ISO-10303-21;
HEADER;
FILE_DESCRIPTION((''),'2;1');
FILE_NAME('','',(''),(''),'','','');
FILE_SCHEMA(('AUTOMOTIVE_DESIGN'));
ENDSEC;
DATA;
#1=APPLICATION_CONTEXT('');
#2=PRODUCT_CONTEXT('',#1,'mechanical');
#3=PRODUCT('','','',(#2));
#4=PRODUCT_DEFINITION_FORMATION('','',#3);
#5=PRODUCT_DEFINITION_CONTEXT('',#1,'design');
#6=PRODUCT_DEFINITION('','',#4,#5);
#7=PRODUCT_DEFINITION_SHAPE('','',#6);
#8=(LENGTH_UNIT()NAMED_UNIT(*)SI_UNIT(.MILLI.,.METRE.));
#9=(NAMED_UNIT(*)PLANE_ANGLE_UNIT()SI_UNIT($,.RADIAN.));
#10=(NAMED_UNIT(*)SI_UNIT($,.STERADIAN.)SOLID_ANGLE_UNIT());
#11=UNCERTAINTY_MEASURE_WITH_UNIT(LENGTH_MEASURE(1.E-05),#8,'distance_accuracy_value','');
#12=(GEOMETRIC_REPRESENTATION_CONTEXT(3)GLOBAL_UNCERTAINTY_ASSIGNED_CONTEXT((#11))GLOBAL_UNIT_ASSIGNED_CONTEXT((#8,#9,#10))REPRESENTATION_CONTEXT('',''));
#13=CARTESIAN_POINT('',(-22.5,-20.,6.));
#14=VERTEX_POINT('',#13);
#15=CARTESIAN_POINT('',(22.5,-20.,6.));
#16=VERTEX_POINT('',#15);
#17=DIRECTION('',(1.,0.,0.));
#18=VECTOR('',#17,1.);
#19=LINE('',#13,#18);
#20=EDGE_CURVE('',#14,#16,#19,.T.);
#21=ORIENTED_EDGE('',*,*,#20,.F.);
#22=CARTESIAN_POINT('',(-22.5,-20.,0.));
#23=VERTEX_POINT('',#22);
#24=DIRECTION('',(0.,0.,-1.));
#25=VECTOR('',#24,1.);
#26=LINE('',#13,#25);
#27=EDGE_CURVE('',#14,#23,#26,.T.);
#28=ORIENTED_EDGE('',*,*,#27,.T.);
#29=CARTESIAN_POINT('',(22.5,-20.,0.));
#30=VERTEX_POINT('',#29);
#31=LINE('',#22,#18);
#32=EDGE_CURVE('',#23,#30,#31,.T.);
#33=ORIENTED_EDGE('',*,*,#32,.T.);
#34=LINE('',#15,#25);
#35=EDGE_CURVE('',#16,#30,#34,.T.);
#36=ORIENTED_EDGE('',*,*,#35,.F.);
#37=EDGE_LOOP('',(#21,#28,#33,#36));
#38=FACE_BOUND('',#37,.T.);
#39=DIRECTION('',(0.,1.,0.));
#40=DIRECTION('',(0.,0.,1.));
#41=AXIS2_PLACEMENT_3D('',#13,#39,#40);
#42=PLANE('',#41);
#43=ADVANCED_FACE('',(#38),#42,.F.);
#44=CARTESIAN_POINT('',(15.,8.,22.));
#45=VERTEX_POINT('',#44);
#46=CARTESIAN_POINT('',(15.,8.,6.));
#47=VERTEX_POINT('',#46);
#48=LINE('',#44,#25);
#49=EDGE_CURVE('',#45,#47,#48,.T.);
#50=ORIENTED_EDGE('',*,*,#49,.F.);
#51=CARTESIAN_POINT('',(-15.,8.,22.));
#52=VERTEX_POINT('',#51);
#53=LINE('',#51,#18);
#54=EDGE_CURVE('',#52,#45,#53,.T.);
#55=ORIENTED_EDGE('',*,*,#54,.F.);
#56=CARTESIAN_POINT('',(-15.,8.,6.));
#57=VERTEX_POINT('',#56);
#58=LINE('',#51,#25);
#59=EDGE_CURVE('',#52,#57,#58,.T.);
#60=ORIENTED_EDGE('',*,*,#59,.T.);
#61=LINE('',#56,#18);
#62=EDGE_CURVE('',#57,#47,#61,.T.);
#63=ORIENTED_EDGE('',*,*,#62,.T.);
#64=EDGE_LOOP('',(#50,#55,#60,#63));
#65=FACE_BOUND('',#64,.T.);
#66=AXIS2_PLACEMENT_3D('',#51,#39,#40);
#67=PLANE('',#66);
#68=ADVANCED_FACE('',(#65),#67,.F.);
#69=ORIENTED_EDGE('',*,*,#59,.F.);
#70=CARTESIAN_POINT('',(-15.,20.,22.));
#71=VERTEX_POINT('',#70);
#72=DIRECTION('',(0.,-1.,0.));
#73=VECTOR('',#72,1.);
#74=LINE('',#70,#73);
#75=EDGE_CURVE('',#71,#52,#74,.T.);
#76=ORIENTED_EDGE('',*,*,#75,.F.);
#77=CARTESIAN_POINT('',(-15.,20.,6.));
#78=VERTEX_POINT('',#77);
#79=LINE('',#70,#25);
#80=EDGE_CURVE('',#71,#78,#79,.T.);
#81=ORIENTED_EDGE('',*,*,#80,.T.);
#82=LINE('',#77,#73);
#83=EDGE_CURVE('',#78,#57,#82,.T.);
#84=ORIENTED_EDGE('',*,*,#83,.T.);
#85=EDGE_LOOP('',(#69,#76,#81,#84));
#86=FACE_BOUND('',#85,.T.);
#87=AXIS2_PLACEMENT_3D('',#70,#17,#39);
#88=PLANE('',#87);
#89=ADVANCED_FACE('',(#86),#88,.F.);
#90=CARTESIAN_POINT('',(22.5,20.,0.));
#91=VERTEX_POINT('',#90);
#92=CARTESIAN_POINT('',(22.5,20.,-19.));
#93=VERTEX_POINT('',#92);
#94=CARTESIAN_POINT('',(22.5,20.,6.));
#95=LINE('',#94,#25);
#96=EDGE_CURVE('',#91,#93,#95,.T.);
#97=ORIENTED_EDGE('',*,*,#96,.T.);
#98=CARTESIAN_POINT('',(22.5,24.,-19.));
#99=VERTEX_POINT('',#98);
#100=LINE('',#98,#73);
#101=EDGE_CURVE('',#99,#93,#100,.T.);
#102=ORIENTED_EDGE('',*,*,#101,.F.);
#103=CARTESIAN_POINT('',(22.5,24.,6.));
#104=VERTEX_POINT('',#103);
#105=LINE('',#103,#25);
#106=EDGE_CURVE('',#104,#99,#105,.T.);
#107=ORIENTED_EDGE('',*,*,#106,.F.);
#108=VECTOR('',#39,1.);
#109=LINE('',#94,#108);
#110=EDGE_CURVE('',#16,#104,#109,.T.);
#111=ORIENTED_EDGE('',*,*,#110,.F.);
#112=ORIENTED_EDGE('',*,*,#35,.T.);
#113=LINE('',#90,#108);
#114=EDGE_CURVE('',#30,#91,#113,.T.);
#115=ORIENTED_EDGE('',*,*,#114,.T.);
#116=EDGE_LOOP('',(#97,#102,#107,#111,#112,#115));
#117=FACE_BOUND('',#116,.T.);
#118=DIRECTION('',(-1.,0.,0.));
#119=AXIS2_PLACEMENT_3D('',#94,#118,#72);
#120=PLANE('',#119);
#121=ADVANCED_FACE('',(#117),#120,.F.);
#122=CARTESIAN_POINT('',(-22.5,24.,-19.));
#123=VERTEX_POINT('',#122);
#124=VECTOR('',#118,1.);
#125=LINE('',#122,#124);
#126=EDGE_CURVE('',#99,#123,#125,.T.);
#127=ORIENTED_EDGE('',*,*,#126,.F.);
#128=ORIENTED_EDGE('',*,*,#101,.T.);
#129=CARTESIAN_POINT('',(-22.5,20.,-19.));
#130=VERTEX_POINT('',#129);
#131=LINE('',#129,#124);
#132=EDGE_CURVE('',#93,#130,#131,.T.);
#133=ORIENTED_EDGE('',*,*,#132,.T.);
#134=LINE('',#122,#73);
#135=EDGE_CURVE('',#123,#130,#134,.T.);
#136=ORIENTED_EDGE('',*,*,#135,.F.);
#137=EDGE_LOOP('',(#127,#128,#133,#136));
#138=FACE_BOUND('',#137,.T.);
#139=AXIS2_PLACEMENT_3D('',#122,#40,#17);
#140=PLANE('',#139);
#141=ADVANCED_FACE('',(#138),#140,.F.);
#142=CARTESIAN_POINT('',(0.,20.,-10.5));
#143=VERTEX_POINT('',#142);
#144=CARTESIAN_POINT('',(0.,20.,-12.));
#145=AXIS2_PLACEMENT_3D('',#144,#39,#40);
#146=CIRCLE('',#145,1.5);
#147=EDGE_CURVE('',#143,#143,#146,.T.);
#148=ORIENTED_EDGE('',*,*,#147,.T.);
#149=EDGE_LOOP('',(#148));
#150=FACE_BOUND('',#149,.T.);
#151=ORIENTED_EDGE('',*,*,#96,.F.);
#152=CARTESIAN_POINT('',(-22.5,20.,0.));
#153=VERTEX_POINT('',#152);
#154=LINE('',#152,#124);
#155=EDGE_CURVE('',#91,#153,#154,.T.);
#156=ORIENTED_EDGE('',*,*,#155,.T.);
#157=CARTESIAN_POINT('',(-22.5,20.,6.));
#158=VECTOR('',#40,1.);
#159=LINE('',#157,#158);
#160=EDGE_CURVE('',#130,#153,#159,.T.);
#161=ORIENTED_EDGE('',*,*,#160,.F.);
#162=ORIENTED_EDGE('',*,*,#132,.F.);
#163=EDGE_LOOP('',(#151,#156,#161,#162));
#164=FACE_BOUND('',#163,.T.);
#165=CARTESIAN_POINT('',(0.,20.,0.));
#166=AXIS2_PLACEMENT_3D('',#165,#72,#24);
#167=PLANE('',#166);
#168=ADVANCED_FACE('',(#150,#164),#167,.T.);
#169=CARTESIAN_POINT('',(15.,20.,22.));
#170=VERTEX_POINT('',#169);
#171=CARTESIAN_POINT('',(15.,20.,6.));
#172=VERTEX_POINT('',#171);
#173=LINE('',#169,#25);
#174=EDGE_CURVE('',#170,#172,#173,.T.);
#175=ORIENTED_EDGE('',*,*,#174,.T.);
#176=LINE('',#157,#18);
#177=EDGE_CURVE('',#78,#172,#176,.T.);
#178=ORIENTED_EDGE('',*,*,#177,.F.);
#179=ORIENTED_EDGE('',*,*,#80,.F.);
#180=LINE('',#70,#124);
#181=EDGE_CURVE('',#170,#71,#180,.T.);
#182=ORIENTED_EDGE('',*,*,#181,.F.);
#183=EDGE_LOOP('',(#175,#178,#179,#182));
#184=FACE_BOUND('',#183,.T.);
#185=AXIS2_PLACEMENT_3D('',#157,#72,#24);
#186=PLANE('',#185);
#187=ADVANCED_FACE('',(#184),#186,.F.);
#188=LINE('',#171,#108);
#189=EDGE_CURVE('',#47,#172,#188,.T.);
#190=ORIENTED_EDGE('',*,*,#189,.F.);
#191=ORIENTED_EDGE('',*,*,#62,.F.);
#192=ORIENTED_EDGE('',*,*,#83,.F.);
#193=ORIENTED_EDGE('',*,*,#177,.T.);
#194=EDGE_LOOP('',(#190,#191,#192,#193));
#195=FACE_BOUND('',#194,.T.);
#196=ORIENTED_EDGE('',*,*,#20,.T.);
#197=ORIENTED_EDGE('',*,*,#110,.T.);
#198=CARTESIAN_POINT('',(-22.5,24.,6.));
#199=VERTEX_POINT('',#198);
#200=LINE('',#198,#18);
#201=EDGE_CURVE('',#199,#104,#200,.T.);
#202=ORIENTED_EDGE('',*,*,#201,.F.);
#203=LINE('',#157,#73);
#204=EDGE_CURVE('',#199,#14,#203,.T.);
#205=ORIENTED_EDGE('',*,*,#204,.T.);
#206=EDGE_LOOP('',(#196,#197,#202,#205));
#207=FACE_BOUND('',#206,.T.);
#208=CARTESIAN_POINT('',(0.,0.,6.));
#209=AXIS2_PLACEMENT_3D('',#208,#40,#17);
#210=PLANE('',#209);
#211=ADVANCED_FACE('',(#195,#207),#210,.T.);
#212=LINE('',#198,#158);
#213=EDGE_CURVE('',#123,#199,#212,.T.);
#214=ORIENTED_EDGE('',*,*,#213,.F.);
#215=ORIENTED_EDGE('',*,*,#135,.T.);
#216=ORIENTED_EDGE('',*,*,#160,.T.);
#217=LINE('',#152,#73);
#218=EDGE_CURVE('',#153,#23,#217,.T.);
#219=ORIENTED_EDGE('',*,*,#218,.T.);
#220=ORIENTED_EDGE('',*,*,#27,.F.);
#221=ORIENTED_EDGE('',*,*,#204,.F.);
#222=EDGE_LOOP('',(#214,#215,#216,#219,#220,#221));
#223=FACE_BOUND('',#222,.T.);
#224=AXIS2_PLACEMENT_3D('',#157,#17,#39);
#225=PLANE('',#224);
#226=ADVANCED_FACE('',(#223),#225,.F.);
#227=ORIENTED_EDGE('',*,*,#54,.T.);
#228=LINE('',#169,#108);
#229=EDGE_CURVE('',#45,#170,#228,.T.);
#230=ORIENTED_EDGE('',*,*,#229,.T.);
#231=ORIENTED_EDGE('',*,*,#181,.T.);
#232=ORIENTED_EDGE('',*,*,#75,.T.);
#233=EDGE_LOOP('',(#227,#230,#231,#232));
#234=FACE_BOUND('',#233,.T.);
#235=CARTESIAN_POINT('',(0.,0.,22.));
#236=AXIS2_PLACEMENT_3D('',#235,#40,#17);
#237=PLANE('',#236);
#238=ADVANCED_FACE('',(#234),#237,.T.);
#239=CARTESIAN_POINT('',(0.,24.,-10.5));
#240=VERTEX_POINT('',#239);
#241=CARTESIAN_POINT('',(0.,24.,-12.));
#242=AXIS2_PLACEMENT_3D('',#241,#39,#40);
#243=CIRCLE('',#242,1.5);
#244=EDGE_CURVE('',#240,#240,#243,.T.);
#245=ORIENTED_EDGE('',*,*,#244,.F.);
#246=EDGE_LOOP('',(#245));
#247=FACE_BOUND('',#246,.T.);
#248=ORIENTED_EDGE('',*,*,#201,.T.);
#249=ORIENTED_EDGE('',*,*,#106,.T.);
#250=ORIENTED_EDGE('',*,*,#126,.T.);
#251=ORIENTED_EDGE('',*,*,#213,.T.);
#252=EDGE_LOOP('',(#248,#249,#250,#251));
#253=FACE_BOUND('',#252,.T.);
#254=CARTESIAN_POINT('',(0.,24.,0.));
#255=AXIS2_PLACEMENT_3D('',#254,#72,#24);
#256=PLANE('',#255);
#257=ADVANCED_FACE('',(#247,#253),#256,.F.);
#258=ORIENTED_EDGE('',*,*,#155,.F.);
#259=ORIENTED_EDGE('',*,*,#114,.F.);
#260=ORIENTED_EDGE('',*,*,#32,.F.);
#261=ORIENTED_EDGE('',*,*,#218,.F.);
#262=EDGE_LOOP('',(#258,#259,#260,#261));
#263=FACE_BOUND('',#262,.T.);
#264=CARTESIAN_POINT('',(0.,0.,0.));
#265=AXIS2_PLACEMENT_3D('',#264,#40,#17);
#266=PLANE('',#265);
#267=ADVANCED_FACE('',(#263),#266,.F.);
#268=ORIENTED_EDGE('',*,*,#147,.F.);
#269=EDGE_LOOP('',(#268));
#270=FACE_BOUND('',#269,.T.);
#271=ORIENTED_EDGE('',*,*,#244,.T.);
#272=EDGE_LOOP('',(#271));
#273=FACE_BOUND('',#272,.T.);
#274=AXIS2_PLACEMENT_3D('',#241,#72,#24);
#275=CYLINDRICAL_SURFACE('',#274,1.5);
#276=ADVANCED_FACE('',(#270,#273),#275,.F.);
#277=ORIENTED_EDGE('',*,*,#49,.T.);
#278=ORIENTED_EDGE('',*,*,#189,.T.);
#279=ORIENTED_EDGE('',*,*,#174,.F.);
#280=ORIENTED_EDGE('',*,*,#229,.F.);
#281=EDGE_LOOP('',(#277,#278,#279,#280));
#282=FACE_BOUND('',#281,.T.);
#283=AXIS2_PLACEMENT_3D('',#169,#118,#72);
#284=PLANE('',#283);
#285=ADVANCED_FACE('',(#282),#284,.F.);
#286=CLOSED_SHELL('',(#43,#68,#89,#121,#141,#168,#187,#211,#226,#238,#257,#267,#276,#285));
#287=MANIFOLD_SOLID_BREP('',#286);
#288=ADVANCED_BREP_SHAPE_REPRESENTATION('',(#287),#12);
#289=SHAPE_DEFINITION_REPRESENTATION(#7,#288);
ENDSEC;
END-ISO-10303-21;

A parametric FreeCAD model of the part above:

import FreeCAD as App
import Part
import Sketcher
from FreeCAD import Vector

doc = App.newDocument("Part")
params = doc.addObject("Spreadsheet::Sheet", "Params")
for row, (alias, value) in enumerate([
    ("sketch1_width", "45 mm"),
    ("sketch1_height", "40 mm"),
    ("pad1_length", "6 mm"),
    ("sketch2_width", "30 mm"),
    ("sketch2_height", "12 mm"),
    ("pad2_length", "16 mm"),
    ("sketch3_diameter", "3 mm"),
    ("sketch3_width", "45 mm"),
    ("sketch3_height", "25 mm"),
    ("pad3_length", "4 mm"),
], start=1):
    params.set(f"A{row}", alias)
    params.set(f"B{row}", "=" + value)
    params.setAlias(f"B{row}", alias)

body = doc.addObject("PartDesign::Body", "Body")

# Sketch on XY plane
sketch1 = body.newObject("Sketcher::SketchObject", "Sketch")
sketch1.AttachmentSupport = (doc.getObject("XY_Plane"), [""])
sketch1.MapMode = "FlatFace"
sketch1.addGeometry([
    Part.LineSegment(Vector(-22, 20, 0), Vector(-22, -20, 0)),
    Part.LineSegment(Vector(-22, -20, 0), Vector(22, -20, 0)),
    Part.LineSegment(Vector(22, -20, 0), Vector(22, 20, 0)),
    Part.LineSegment(Vector(22, 20, 0), Vector(-22, 20, 0)),
], False)
sketch1.addConstraint([
    Sketcher.Constraint("Coincident", 0, 2, 1, 1),
    Sketcher.Constraint("Coincident", 1, 2, 2, 1),
    Sketcher.Constraint("Coincident", 2, 2, 3, 1),
    Sketcher.Constraint("Coincident", 3, 2, 0, 1),
    Sketcher.Constraint("Vertical", 0),
    Sketcher.Constraint("Horizontal", 1),
    Sketcher.Constraint("Vertical", 2),
    Sketcher.Constraint("Horizontal", 3),
    Sketcher.Constraint("Symmetric", 0, 2, 2, 2, -1, 1),
    Sketcher.Constraint("DistanceX", 1, 1, 1, 2, 45.0),
    Sketcher.Constraint("DistanceY", 0, 2, 0, 1, 40.0),
])
sketch1.setExpression("Constraints[9]", "Params.sketch1_width")
sketch1.setExpression("Constraints[10]", "Params.sketch1_height")
pad1 = body.newObject("PartDesign::Pad", "Pad")
pad1.Profile = sketch1
pad1.setExpression("Length", "Params.pad1_length")

# Sketch on XY plane
sketch2 = body.newObject("Sketcher::SketchObject", "Sketch001")
sketch2.AttachmentSupport = (doc.getObject("XY_Plane"), [""])
sketch2.MapMode = "FlatFace"
sketch2.AttachmentOffset = App.Placement(Vector(0, 0, 6), App.Rotation())
sketch2.addGeometry([
    Part.LineSegment(Vector(-15, 20, 0), Vector(-15, 8, 0)),
    Part.LineSegment(Vector(-15, 8, 0), Vector(15, 8, 0)),
    Part.LineSegment(Vector(15, 8, 0), Vector(15, 20, 0)),
    Part.LineSegment(Vector(15, 20, 0), Vector(-15, 20, 0)),
], False)
sketch2.addConstraint([
    Sketcher.Constraint("Coincident", 0, 2, 1, 1),
    Sketcher.Constraint("Coincident", 1, 2, 2, 1),
    Sketcher.Constraint("Coincident", 2, 2, 3, 1),
    Sketcher.Constraint("Coincident", 3, 2, 0, 1),
    Sketcher.Constraint("Vertical", 0),
    Sketcher.Constraint("Horizontal", 1),
    Sketcher.Constraint("Vertical", 2),
    Sketcher.Constraint("Horizontal", 3),
    Sketcher.Constraint("DistanceX", 1, 1, 1, 2, 30.0),
    Sketcher.Constraint("DistanceY", 0, 2, 0, 1, 12.0),
    Sketcher.Constraint("DistanceX", 0, 2, -1, 1, 15.0),
    Sketcher.Constraint("DistanceY", -1, 1, 0, 2, 8.0),
])
sketch2.setExpression("Constraints[8]", "Params.sketch2_width")
sketch2.setExpression("Constraints[9]", "Params.sketch2_height")
pad2 = body.newObject("PartDesign::Pad", "Pad001")
pad2.Profile = sketch2
pad2.setExpression("Length", "Params.pad2_length")

# Sketch on XZ plane
sketch3 = body.newObject("Sketcher::SketchObject", "Sketch002")
sketch3.AttachmentSupport = (doc.getObject("XZ_Plane"), [""])
sketch3.MapMode = "FlatFace"
sketch3.AttachmentOffset = App.Placement(Vector(0, 0, -20), App.Rotation())
sketch3.addGeometry([
    Part.LineSegment(Vector(-22.5, -19, 0), Vector(-22.5, 6, 0)),  # 0
    Part.LineSegment(Vector(-22.5, 6, 0), Vector(22.5, 6, 0)),  # 1
    Part.LineSegment(Vector(22.5, 6, 0), Vector(22.5, -19, 0)),  # 2
    Part.LineSegment(Vector(22.5, -19, 0), Vector(-22.5, -19, 0)),  # 3
    Part.Circle(Vector(0, -12, 0), Vector(0, 0, 1), 1.5),  # 4
], False)
sketch3.addConstraint([
    Sketcher.Constraint("Coincident", 0, 2, 1, 1),
    Sketcher.Constraint("Coincident", 1, 2, 2, 1),
    Sketcher.Constraint("Coincident", 2, 2, 3, 1),
    Sketcher.Constraint("Coincident", 3, 2, 0, 1),
    Sketcher.Constraint("Vertical", 0),
    Sketcher.Constraint("Horizontal", 1),
    Sketcher.Constraint("Vertical", 2),
    Sketcher.Constraint("Horizontal", 3),
    Sketcher.Constraint("PointOnObject", 4, 3, -2),
    Sketcher.Constraint("Diameter", 4, 3.0),
    Sketcher.Constraint("DistanceX", 1, 1, 1, 2, 45.0),
    Sketcher.Constraint("DistanceY", 0, 1, 0, 2, 25.0),
    Sketcher.Constraint("DistanceY", 4, 3, -1, 1, 12.0),
    Sketcher.Constraint("DistanceY", -1, 1, 0, 2, 6.0),
    Sketcher.Constraint("DistanceX", 0, 2, -1, 1, 22.5),
])
sketch3.setExpression("Constraints[9]", "Params.sketch3_diameter")
sketch3.setExpression("Constraints[10]", "Params.sketch3_width")
sketch3.setExpression("Constraints[11]", "Params.sketch3_height")
pad3 = body.newObject("PartDesign::Pad", "Pad002")
pad3.Profile = sketch3
pad3.setExpression("Length", "Params.pad3_length")
pad3.Reversed = True

doc.recompute()
